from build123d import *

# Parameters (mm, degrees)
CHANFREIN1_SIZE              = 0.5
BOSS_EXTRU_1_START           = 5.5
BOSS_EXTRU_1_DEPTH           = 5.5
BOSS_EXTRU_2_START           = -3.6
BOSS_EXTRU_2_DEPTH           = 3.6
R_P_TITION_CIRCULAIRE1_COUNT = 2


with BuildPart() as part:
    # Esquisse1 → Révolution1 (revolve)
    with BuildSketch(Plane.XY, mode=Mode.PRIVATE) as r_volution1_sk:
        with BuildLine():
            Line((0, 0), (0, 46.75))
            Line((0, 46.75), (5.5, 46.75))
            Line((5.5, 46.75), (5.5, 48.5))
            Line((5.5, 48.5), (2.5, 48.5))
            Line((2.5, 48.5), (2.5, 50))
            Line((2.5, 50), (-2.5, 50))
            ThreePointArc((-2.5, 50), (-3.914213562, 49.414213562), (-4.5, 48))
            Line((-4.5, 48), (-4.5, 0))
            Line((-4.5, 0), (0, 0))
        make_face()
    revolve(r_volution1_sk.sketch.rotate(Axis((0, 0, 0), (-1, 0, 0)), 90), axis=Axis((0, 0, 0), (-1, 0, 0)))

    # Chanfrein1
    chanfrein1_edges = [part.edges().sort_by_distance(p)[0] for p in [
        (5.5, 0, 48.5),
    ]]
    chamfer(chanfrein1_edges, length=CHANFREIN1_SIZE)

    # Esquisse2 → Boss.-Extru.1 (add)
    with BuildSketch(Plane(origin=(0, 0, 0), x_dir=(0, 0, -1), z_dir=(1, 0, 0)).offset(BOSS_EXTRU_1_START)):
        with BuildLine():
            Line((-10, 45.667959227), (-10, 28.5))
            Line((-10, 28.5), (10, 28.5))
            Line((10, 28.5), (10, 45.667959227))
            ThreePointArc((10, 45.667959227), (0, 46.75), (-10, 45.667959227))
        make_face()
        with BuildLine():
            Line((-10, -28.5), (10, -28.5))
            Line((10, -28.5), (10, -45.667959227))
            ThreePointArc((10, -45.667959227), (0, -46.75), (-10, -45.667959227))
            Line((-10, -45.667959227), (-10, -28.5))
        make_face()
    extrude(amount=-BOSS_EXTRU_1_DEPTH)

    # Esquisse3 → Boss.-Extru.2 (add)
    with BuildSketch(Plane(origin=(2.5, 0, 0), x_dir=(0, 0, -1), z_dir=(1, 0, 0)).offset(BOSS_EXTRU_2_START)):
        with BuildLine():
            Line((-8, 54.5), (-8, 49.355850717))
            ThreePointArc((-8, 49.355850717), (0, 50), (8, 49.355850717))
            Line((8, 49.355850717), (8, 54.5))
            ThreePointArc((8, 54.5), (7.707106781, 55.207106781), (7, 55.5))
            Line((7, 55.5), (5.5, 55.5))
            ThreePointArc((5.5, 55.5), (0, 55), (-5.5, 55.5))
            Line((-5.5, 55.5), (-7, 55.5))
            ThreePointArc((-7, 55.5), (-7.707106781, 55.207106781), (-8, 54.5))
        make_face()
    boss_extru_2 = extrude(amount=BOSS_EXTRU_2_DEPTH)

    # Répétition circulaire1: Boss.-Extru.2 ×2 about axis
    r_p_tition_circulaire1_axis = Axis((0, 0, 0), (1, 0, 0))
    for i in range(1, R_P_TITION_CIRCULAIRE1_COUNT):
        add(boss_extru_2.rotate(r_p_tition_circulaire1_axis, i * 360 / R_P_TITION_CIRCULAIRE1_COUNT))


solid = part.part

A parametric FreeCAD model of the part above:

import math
import FreeCAD as App
import Part
import Sketcher

V = App.Vector
Q = App.Units.Quantity


def edges_at(feature, points):
    """Names of the edges that pass closest to the given points."""
    edges = feature.Shape.Edges
    near = lambda p: min(range(len(edges)), key=lambda i: edges[i].distToShape(Part.Vertex(*p))[0])
    return sorted({f"Edge{near(p) + 1}" for p in points})

doc = App.newDocument("Part")
params = doc.addObject("Spreadsheet::Sheet", "Params")
for row, (alias, value) in enumerate([
    ("sketch1_radius", "2 mm"),
    ("sketch1_width", "3 mm"),
    ("sketch1_width2", "5 mm"),
    ("sketch1_height", "48 mm"),
    ("sketch1_width3", "5.5 mm"),
    ("revolution_angle", "360 deg"),
    ("chamfer_size", "0.5 mm"),
    ("sketch2_height", "20 mm"),
    ("sketch2_radius", "46.75 mm"),
    ("pad1_length", "5.5 mm"),
    ("sketch3_radius", "50 mm"),
    ("sketch3_radius2", "1 mm"),
    ("sketch3_radius3", "30.5 mm"),
    ("sketch3_height", "1.5 mm"),
    ("pad2_length", "3.6 mm"),
], start=1):
    params.set(f"A{row}", alias)
    params.set(f"B{row}", "=" + value)
    params.setAlias(f"B{row}", alias)

body = doc.addObject("PartDesign::Body", "Body")

sketch1 = body.newObject("Sketcher::SketchObject", "Sketch")
sketch1.AttachmentSupport = (doc.getObject("XY_Plane"), [""])
sketch1.MapMode = "FlatFace"
sketch1.addGeometry([
    Part.LineSegment(V(0, 0, 0), V(0, 46.8, 0)),
    Part.LineSegment(V(0, 46.8, 0), V(5.5, 46.8, 0)),
    Part.LineSegment(V(5.5, 46.8, 0), V(5.5, 48.5, 0)),
    Part.LineSegment(V(5.5, 48.5, 0), V(2.5, 48.5, 0)),
    Part.LineSegment(V(2.5, 48.5, 0), V(2.5, 50, 0)),
    Part.LineSegment(V(2.5, 50, 0), V(-2.5, 50, 0)),
    Part.ArcOfCircle(Part.Circle(V(-2.5, 48, 0), V(0, 0, 1), 2), math.radians(90), math.radians(180)),
    Part.LineSegment(V(-4.5, 48, 0), V(-4.5, 0, 0)),
    Part.LineSegment(V(-4.5, 0, 0), V(0, 0, 0)),
], False)
sketch1.addConstraint([
    Sketcher.Constraint("Coincident", 0, 2, 1, 1),
    Sketcher.Constraint("Coincident", 1, 2, 2, 1),
    Sketcher.Constraint("Coincident", 2, 2, 3, 1),
    Sketcher.Constraint("Coincident", 3, 2, 4, 1),
    Sketcher.Constraint("Coincident", 4, 2, 5, 1),
    Sketcher.Constraint("Tangent", 5, 2, 6, 1),
    Sketcher.Constraint("Tangent", 6, 2, 7, 1),
    Sketcher.Constraint("Coincident", 7, 2, 8, 1),
    Sketcher.Constraint("Coincident", 8, 2, 0, 1),
    Sketcher.Constraint("Vertical", 0),
    Sketcher.Constraint("Horizontal", 1),
    Sketcher.Constraint("Vertical", 2),
    Sketcher.Constraint("Horizontal", 3),
    Sketcher.Constraint("Vertical", 4),
    Sketcher.Constraint("Horizontal", 5),
    Sketcher.Constraint("Vertical", 7),
    Sketcher.Constraint("Horizontal", 8),
    Sketcher.Constraint("Coincident", 8, 2, -1, 1),
    Sketcher.Constraint("Radius", 6, Q("2 mm")),
    Sketcher.Constraint("DistanceX", 3, 2, 3, 1, Q("3 mm")),
    Sketcher.Constraint("DistanceX", 5, 2, 5, 1, Q("5 mm")),
    Sketcher.Constraint("DistanceY", 7, 2, 7, 1, Q("48 mm")),
    Sketcher.Constraint("DistanceX", 1, 1, 1, 2, Q("5.5 mm")),
    Sketcher.Constraint("DistanceY", 4, 1, 4, 2, Q("1.5 mm")),
    Sketcher.Constraint("DistanceY", 0, 1, 0, 2, Q("46.75 mm")),
])
sketch1.setExpression("Constraints[18]", "Params.sketch1_radius")
sketch1.setExpression("Constraints[19]", "Params.sketch1_width")
sketch1.setExpression("Constraints[20]", "Params.sketch1_width2")
sketch1.setExpression("Constraints[21]", "Params.sketch1_height")
sketch1.setExpression("Constraints[22]", "Params.sketch1_width3")
revolution = body.newObject("PartDesign::Revolution", "Revolution")
revolution.Profile = sketch1
revolution.ReferenceAxis = (sketch1, ["H_Axis"])
revolution.setExpression("Angle", "Params.revolution_angle")
doc.recompute()

chamfer = body.newObject("PartDesign::Chamfer", "Chamfer")
chamfer.Base = (revolution, edges_at(revolution, [(5.5, 0, 48.5)]))
chamfer.setExpression("Size", "Params.chamfer_size")

sketch2 = body.newObject("Sketcher::SketchObject", "Sketch001")
sketch2.AttachmentSupport = (doc.getObject("YZ_Plane"), [""])
sketch2.MapMode = "FlatFace"
sketch2.AttachmentOffset = App.Placement(V(0, 0, 5.5), App.Rotation())
sketch2.addGeometry([
    Part.LineSegment(V(46, 10, 0), V(28, 10, 0)),
    Part.LineSegment(V(28, 10, 0), V(28, -10, 0)),
    Part.LineSegment(V(28, -10, 0), V(46, -10, 0)),
    Part.ArcOfCircle(Part.Circle(V(0, 0, 0), V(0, 0, 1), 47), math.radians(-12), math.radians(12)),
    Part.LineSegment(V(-28, -10, 0), V(-28, 10, 0)),
    Part.LineSegment(V(-28, 10, 0), V(-46, 10, 0)),
    Part.ArcOfCircle(Part.Circle(V(0, 0, 0), V(0, 0, 1), 47), math.radians(168), math.radians(192)),
    Part.LineSegment(V(-46, -10, 0), V(-28, -10, 0)),
], False)
sketch2.addConstraint([
    Sketcher.Constraint("Coincident", 0, 2, 1, 1),
    Sketcher.Constraint("Coincident", 1, 2, 2, 1),
    Sketcher.Constraint("Coincident", 2, 2, 3, 1),
    Sketcher.Constraint("Coincident", 3, 2, 0, 1),
    Sketcher.Constraint("Coincident", 4, 2, 5, 1),
    Sketcher.Constraint("Coincident", 5, 2, 6, 1),
    Sketcher.Constraint("Coincident", 6, 2, 7, 1),
    Sketcher.Constraint("Coincident", 7, 2, 4, 1),
    Sketcher.Constraint("Horizontal", 0),
    Sketcher.Constraint("Vertical", 1),
    Sketcher.Constraint("Horizontal", 2),
    Sketcher.Constraint("Vertical", 4),
    Sketcher.Constraint("Horizontal", 5),
    Sketcher.Constraint("Horizontal", 7),
    Sketcher.Constraint("Coincident", 3, 3, -1, 1),
    Sketcher.Constraint("Coincident", 6, 3, -1, 1),
    Sketcher.Constraint("Equal", 3, 6),
    Sketcher.Constraint("Symmetric", 1, 2, 4, 2, -1, 1),
    Sketcher.Constraint("Horizontal", 3, 2, 4, 2),
    Sketcher.Constraint("Horizontal", 2, 2, 6, 2),
    Sketcher.Constraint("DistanceY", 1, 2, 1, 1, Q("20 mm")),
    Sketcher.Constraint("Radius", 3, Q("46.75 mm")),
    Sketcher.Constraint("DistanceX", 4, 2, 0, 2, Q("57 mm")),
])
sketch2.setExpression("Constraints[20]", "Params.sketch2_height")
sketch2.setExpression("Constraints[21]", "Params.sketch2_radius")
pad1 = body.newObject("PartDesign::Pad", "Pad")
pad1.Profile = sketch2
pad1.setExpression("Length", "Params.pad1_length")
pad1.Reversed = True

sketch3 = body.newObject("Sketcher::SketchObject", "Sketch002")
sketch3.AttachmentSupport = (doc.getObject("YZ_Plane"), [""])
sketch3.MapMode = "FlatFace"
sketch3.AttachmentOffset = App.Placement(V(0, 0, -1.1), App.Rotation())
sketch3.addGeometry([
    Part.LineSegment(V(54.5, 8, 0), V(49.4, 8, 0)),
    Part.ArcOfCircle(Part.Circle(V(0, 0, 0), V(0, 0, 1), 50), math.radians(-9.21), math.radians(9.21)),
    Part.LineSegment(V(49.4, -8, 0), V(54.5, -8, 0)),
    Part.ArcOfCircle(Part.Circle(V(54.5, -7, 0), V(0, 0, 1), 1), math.radians(-90), math.radians(0)),
    Part.LineSegment(V(55.5, -7, 0), V(55.5, -5.5, 0)),
    Part.ArcOfCircle(Part.Circle(V(85.5, 0, 0), V(0, 0, 1), 30.5), math.radians(170), math.radians(190)),
    Part.LineSegment(V(55.5, 5.5, 0), V(55.5, 7, 0)),
    Part.ArcOfCircle(Part.Circle(V(54.5, 7, 0), V(0, 0, 1), 1), math.radians(0), math.radians(90)),
], False)
sketch3.addConstraint([
    Sketcher.Constraint("Coincident", 0, 2, 1, 2),
    Sketcher.Constraint("Coincident", 1, 1, 2, 1),
    Sketcher.Constraint("Tangent", 2, 2, 3, 1),
    Sketcher.Constraint("Tangent", 3, 2, 4, 1),
    Sketcher.Constraint("Coincident", 4, 2, 5, 2),
    Sketcher.Constraint("Coincident", 5, 1, 6, 1),
    Sketcher.Constraint("Tangent", 6, 2, 7, 1),
    Sketcher.Constraint("Tangent", 7, 2, 0, 1),
    Sketcher.Constraint("Horizontal", 0),
    Sketcher.Constraint("Horizontal", 2),
    Sketcher.Constraint("Vertical", 4),
    Sketcher.Constraint("Vertical", 6),
    Sketcher.Constraint("Coincident", 1, 3, -1, 1),
    Sketcher.Constraint("Equal", 3, 7),
    Sketcher.Constraint("Symmetric", 3, 3, 7, 3, -1),
    Sketcher.Constraint("PointOnObject", 5, 3, -1),
    Sketcher.Constraint("Radius", 1, Q("50 mm")),
    Sketcher.Constraint("Radius", 3, Q("1 mm")),
    Sketcher.Constraint("Radius", 5, Q("30.5 mm")),
    Sketcher.Constraint("DistanceY", 4, 1, 4, 2, Q("1.5 mm")),
    Sketcher.Constraint("DistanceY", 3, 3, -1, 1, Q("7 mm")),
    Sketcher.Constraint("DistanceX", -1, 1, 3, 3, Q("54.5 mm")),
])
sketch3.setExpression("Constraints[16]", "Params.sketch3_radius")
sketch3.setExpression("Constraints[17]", "Params.sketch3_radius2")
sketch3.setExpression("Constraints[18]", "Params.sketch3_radius3")
sketch3.setExpression("Constraints[19]", "Params.sketch3_height")
pad2 = body.newObject("PartDesign::Pad", "Pad001")
pad2.Profile = sketch3
pad2.setExpression("Length", "Params.pad2_length")
doc.recompute()

polarpattern = body.newObject("PartDesign::PolarPattern", "PolarPattern")
polarpattern.Originals = [pad2]
polarpattern.Axis = (doc.getObject("X_Axis"), [""])
polarpattern.Angle = 360
polarpattern.Occurrences = 2
body.Tip = polarpattern

doc.recompute()
